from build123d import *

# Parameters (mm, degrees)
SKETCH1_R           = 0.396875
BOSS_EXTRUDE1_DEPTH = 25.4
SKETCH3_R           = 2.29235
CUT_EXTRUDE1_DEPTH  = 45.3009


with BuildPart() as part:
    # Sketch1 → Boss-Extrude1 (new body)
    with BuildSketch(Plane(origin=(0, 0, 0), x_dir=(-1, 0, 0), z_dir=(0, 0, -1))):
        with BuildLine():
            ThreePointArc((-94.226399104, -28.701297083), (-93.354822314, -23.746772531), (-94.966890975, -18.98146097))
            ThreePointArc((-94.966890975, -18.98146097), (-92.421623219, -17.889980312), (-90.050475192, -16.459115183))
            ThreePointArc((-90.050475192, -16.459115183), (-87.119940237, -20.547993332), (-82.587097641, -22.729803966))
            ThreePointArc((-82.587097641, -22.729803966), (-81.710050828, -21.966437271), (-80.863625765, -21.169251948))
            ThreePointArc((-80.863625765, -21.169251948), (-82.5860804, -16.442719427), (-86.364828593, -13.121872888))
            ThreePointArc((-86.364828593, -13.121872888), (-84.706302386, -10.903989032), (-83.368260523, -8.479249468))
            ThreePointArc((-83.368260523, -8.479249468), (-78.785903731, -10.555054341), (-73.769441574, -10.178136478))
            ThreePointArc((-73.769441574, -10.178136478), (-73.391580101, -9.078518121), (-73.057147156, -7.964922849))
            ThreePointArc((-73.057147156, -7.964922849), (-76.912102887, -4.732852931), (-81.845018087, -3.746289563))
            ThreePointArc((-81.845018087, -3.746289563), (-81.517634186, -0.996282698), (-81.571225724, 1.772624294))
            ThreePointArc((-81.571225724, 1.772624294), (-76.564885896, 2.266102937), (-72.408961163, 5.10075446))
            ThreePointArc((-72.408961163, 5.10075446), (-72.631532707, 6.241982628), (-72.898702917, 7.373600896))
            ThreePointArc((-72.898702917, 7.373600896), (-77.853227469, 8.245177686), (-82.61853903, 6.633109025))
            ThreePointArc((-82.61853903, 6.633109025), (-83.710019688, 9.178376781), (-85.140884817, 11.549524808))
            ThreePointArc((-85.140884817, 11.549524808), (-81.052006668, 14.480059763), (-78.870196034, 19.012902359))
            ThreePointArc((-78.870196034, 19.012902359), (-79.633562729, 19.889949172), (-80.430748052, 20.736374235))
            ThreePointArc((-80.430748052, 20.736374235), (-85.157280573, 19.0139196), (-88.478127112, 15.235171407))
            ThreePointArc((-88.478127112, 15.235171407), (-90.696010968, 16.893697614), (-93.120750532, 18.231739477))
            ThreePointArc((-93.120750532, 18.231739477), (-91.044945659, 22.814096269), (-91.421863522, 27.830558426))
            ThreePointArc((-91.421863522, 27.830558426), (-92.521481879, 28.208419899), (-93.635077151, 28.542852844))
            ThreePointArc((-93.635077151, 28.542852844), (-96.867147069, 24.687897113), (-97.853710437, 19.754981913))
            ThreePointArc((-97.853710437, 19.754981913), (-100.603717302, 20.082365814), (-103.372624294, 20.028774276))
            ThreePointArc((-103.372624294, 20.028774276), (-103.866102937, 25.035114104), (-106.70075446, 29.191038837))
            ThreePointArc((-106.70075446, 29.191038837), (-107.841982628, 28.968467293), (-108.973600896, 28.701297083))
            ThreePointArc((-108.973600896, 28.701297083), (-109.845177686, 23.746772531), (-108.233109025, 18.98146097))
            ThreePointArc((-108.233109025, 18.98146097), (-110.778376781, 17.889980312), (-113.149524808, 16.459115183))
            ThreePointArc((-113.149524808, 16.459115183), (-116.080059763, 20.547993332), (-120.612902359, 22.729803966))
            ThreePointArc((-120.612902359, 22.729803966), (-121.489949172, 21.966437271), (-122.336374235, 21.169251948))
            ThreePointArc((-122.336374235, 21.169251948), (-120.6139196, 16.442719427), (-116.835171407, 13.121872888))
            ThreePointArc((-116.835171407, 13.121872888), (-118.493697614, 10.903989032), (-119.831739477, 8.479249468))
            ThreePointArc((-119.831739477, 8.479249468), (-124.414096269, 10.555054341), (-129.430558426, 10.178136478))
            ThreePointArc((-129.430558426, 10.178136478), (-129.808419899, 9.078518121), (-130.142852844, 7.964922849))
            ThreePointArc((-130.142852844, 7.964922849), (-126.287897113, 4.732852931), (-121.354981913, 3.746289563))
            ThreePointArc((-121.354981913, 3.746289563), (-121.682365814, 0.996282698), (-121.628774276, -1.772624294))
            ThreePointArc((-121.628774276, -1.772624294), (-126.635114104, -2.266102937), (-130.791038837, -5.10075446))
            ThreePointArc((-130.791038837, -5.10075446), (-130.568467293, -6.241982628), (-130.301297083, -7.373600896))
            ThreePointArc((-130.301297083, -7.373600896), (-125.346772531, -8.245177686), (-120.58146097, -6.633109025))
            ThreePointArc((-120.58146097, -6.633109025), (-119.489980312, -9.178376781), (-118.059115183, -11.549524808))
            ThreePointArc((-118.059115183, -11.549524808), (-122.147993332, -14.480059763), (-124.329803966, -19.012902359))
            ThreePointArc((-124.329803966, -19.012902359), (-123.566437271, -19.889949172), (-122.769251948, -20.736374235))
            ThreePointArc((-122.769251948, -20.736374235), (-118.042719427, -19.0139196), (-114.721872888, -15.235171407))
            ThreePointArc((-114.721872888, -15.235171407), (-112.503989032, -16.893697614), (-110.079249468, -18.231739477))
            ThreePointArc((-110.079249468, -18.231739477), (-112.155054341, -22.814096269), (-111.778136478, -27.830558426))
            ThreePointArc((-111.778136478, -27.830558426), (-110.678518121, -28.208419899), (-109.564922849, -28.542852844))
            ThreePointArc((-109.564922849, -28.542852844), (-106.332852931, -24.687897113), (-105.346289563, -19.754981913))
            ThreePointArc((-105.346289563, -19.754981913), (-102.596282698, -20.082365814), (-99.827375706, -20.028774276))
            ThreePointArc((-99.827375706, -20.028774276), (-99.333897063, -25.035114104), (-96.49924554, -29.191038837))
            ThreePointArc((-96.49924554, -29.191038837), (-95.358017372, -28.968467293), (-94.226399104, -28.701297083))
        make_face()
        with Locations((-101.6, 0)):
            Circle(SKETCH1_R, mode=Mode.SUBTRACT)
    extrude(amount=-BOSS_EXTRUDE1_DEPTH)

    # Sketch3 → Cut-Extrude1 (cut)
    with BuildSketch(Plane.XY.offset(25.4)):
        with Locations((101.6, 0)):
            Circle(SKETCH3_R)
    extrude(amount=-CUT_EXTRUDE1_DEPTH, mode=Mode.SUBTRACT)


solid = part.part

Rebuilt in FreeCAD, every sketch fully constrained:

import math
import FreeCAD as App
import Part
import Sketcher
Q = App.Units.Quantity

doc = App.newDocument("Part")
body = doc.addObject("PartDesign::Body", "Body")

sketch1 = body.newObject("Sketcher::SketchObject", "Sketch")
sketch1.AttachmentSupport = (doc.getObject("XY_Plane"), [""])
sketch1.MapMode = "FlatFace"
sketch1.addGeometry(Part.ArcOfCircle(Part.Circle(App.Vector(103.485466, -24.518561, 0), App.Vector(0, 0, 1), 10.16), math.radians(146.976007), math.radians(204.310829)), False)
sketch1.addGeometry(Part.ArcOfCircle(Part.Circle(App.Vector(101.6, 0, 0), App.Vector(0, 0, 1), 20.107063), math.radians(-125.057721), math.radians(-109.262069)), False)
sketch1.addGeometry(Part.ArcOfCircle(Part.Circle(App.Vector(80.584222, -12.769177, 0), App.Vector(0, 0, 1), 10.16), math.radians(-78.630618), math.radians(-21.295797)), False)
sketch1.addGeometry(Part.ArcOfCircle(Part.Circle(App.Vector(101.6, 0, 0), App.Vector(0, 0, 1), 29.633333), math.radians(-134.408166), math.radians(-129.911624)), False)
sketch1.addGeometry(Part.ArcOfCircle(Part.Circle(App.Vector(90.973581, -22.17643, 0), App.Vector(0, 0, 1), 10.16), math.radians(116.976007), math.radians(174.310829)), False)
sketch1.addGeometry(Part.ArcOfCircle(Part.Circle(App.Vector(101.6, 0, 0), App.Vector(0, 0, 1), 20.107063), math.radians(-155.057721), math.radians(-139.262069)), False)
sketch1.addGeometry(Part.ArcOfCircle(Part.Circle(App.Vector(77.015213, -0.550543, 0), App.Vector(0, 0, 1), 10.16), math.radians(-108.630618), math.radians(-51.295797)), False)
sketch1.addGeometry(Part.ArcOfCircle(Part.Circle(App.Vector(101.6, 0, 0), App.Vector(0, 0, 1), 29.633333), math.radians(-164.408166), math.radians(-159.911624)), False)
sketch1.addGeometry(Part.ArcOfCircle(Part.Circle(App.Vector(81.309036, -13.892142, 0), App.Vector(0, 0, 1), 10.16), math.radians(86.976007), math.radians(144.310829)), False)
sketch1.addGeometry(Part.ArcOfCircle(Part.Circle(App.Vector(101.6, 0, 0), App.Vector(0, 0, 1), 20.107063), math.radians(174.942279), math.radians(190.737931)), False)
sketch1.addGeometry(Part.ArcOfCircle(Part.Circle(App.Vector(80.033679, 11.815609, 0), App.Vector(0, 0, 1), 10.16), math.radians(-138.630618), math.radians(-81.295797)), False)
sketch1.addGeometry(Part.ArcOfCircle(Part.Circle(App.Vector(101.6, 0, 0), App.Vector(0, 0, 1), 29.633333), math.radians(165.591834), math.radians(170.088376)), False)
sketch1.addGeometry(Part.ArcOfCircle(Part.Circle(App.Vector(77.081439, -1.885466, 0), App.Vector(0, 0, 1), 10.16), math.radians(56.976007), math.radians(114.310829)), False)
sketch1.addGeometry(Part.ArcOfCircle(Part.Circle(App.Vector(101.6, 0, 0), App.Vector(0, 0, 1), 20.107063), math.radians(144.942279), math.radians(160.737931)), False)
sketch1.addGeometry(Part.ArcOfCircle(Part.Circle(App.Vector(88.830823, 21.015778, 0), App.Vector(0, 0, 1), 10.16), math.radians(-168.630618), math.radians(-111.295797)), False)
sketch1.addGeometry(Part.ArcOfCircle(Part.Circle(App.Vector(101.6, 0, 0), App.Vector(0, 0, 1), 29.633333), math.radians(135.591834), math.radians(140.088376)), False)
sketch1.addGeometry(Part.ArcOfCircle(Part.Circle(App.Vector(79.42357, 10.626419, 0), App.Vector(0, 0, 1), 10.16), math.radians(26.976007), math.radians(84.310829)), False)
sketch1.addGeometry(Part.ArcOfCircle(Part.Circle(App.Vector(101.6, 0, 0), App.Vector(0, 0, 1), 20.107063), math.radians(114.942279), math.radians(130.737931)), False)
sketch1.addGeometry(Part.ArcOfCircle(Part.Circle(App.Vector(101.049457, 24.584787, 0), App.Vector(0, 0, 1), 10.16), math.radians(161.369382), math.radians(218.704203)), False)
sketch1.addGeometry(Part.ArcOfCircle(Part.Circle(App.Vector(101.6, 0, 0), App.Vector(0, 0, 1), 29.633333), math.radians(105.591834), math.radians(110.088376)), False)
sketch1.addGeometry(Part.ArcOfCircle(Part.Circle(App.Vector(87.707858, 20.290964, 0), App.Vector(0, 0, 1), 10.16), math.radians(-3.023993), math.radians(54.310829)), False)
sketch1.addGeometry(Part.ArcOfCircle(Part.Circle(App.Vector(101.6, 0, 0), App.Vector(0, 0, 1), 20.107063), math.radians(84.942279), math.radians(100.737931)), False)
sketch1.addGeometry(Part.ArcOfCircle(Part.Circle(App.Vector(113.415609, 21.566321, 0), App.Vector(0, 0, 1), 10.16), math.radians(131.369382), math.radians(188.704203)), False)
sketch1.addGeometry(Part.ArcOfCircle(Part.Circle(App.Vector(101.6, 0, 0), App.Vector(0, 0, 1), 29.633333), math.radians(75.591834), math.radians(80.088376)), False)
sketch1.addGeometry(Part.ArcOfCircle(Part.Circle(App.Vector(99.714534, 24.518561, 0), App.Vector(0, 0, 1), 10.16), math.radians(-33.023993), math.radians(24.310829)), False)
sketch1.addGeometry(Part.ArcOfCircle(Part.Circle(App.Vector(101.6, 0, 0), App.Vector(0, 0, 1), 20.107063), math.radians(54.942279), math.radians(70.737931)), False)
sketch1.addGeometry(Part.ArcOfCircle(Part.Circle(App.Vector(122.615778, 12.769177, 0), App.Vector(0, 0, 1), 10.16), math.radians(101.369382), math.radians(158.704203)), False)
sketch1.addGeometry(Part.ArcOfCircle(Part.Circle(App.Vector(101.6, 0, 0), App.Vector(0, 0, 1), 29.633333), math.radians(45.591834), math.radians(50.088376)), False)
sketch1.addGeometry(Part.ArcOfCircle(Part.Circle(App.Vector(112.226419, 22.17643, 0), App.Vector(0, 0, 1), 10.16), math.radians(-63.023993), math.radians(-5.689171)), False)
sketch1.addGeometry(Part.ArcOfCircle(Part.Circle(App.Vector(101.6, 0, 0), App.Vector(0, 0, 1), 20.107063), math.radians(24.942279), math.radians(40.737931)), False)
sketch1.addGeometry(Part.ArcOfCircle(Part.Circle(App.Vector(126.184787, 0.550543, 0), App.Vector(0, 0, 1), 10.16), math.radians(71.369382), math.radians(128.704203)), False)
sketch1.addGeometry(Part.ArcOfCircle(Part.Circle(App.Vector(101.6, 0, 0), App.Vector(0, 0, 1), 29.633333), math.radians(15.591834), math.radians(20.088376)), False)
sketch1.addGeometry(Part.ArcOfCircle(Part.Circle(App.Vector(121.890964, 13.892142, 0), App.Vector(0, 0, 1), 10.16), math.radians(-93.023993), math.radians(-35.689171)), False)
sketch1.addGeometry(Part.ArcOfCircle(Part.Circle(App.Vector(101.6, 0, 0), App.Vector(0, 0, 1), 20.107063), math.radians(-5.057721), math.radians(10.737931)), False)
sketch1.addGeometry(Part.ArcOfCircle(Part.Circle(App.Vector(123.166321, -11.815609, 0), App.Vector(0, 0, 1), 10.16), math.radians(41.369382), math.radians(98.704203)), False)
sketch1.addGeometry(Part.ArcOfCircle(Part.Circle(App.Vector(101.6, 0, 0), App.Vector(0, 0, 1), 29.633333), math.radians(-14.408166), math.radians(-9.911624)), False)
sketch1.addGeometry(Part.ArcOfCircle(Part.Circle(App.Vector(126.118561, 1.885466, 0), App.Vector(0, 0, 1), 10.16), math.radians(-123.023993), math.radians(-65.689171)), False)
sketch1.addGeometry(Part.ArcOfCircle(Part.Circle(App.Vector(101.6, 0, 0), App.Vector(0, 0, 1), 20.107063), math.radians(-35.057721), math.radians(-19.262069)), False)
sketch1.addGeometry(Part.ArcOfCircle(Part.Circle(App.Vector(114.369177, -21.015778, 0), App.Vector(0, 0, 1), 10.16), math.radians(11.369382), math.radians(68.704203)), False)
sketch1.addGeometry(Part.ArcOfCircle(Part.Circle(App.Vector(101.6, 0, 0), App.Vector(0, 0, 1), 29.633333), math.radians(-44.408166), math.radians(-39.911624)), False)
sketch1.addGeometry(Part.ArcOfCircle(Part.Circle(App.Vector(123.77643, -10.626419, 0), App.Vector(0, 0, 1), 10.16), math.radians(-153.023993), math.radians(-95.689171)), False)
sketch1.addGeometry(Part.ArcOfCircle(Part.Circle(App.Vector(101.6, 0, 0), App.Vector(0, 0, 1), 20.107063), math.radians(-65.057721), math.radians(-49.262069)), False)
sketch1.addGeometry(Part.ArcOfCircle(Part.Circle(App.Vector(102.150543, -24.584787, 0), App.Vector(0, 0, 1), 10.16), math.radians(-18.630618), math.radians(38.704203)), False)
sketch1.addGeometry(Part.ArcOfCircle(Part.Circle(App.Vector(101.6, 0, 0), App.Vector(0, 0, 1), 29.633333), math.radians(-74.408166), math.radians(-69.911624)), False)
sketch1.addGeometry(Part.ArcOfCircle(Part.Circle(App.Vector(115.492142, -20.290964, 0), App.Vector(0, 0, 1), 10.16), math.radians(176.976007), math.radians(234.310829)), False)
sketch1.addGeometry(Part.ArcOfCircle(Part.Circle(App.Vector(101.6, 0, 0), App.Vector(0, 0, 1), 20.107063), math.radians(-95.057721), math.radians(-79.262069)), False)
sketch1.addGeometry(Part.ArcOfCircle(Part.Circle(App.Vector(89.784391, -21.566321, 0), App.Vector(0, 0, 1), 10.16), math.radians(-48.630618), math.radians(8.704203)), False)
sketch1.addGeometry(Part.ArcOfCircle(Part.Circle(App.Vector(101.6, 0, 0), App.Vector(0, 0, 1), 29.633333), math.radians(-104.408166), math.radians(-99.911624)), False)
sketch1.addGeometry(Part.Circle(App.Vector(101.6, 0, 0), App.Vector(0, 0, 1), 0.396875), False)
sketch1.addConstraint(Sketcher.Constraint("Coincident", 0, 1, 1, 2))
sketch1.addConstraint(Sketcher.Constraint("Coincident", 1, 1, 2, 2))
sketch1.addConstraint(Sketcher.Constraint("Coincident", 2, 1, 3, 2))
sketch1.addConstraint(Sketcher.Constraint("Coincident", 3, 1, 4, 2))
sketch1.addConstraint(Sketcher.Constraint("Coincident", 4, 1, 5, 2))
sketch1.addConstraint(Sketcher.Constraint("Coincident", 5, 1, 6, 2))
sketch1.addConstraint(Sketcher.Constraint("Coincident", 6, 1, 7, 2))
sketch1.addConstraint(Sketcher.Constraint("Coincident", 7, 1, 8, 2))
sketch1.addConstraint(Sketcher.Constraint("Coincident", 8, 1, 9, 2))
sketch1.addConstraint(Sketcher.Constraint("Coincident", 9, 1, 10, 2))
sketch1.addConstraint(Sketcher.Constraint("Coincident", 10, 1, 11, 2))
sketch1.addConstraint(Sketcher.Constraint("Coincident", 11, 1, 12, 2))
sketch1.addConstraint(Sketcher.Constraint("Coincident", 12, 1, 13, 2))
sketch1.addConstraint(Sketcher.Constraint("Coincident", 13, 1, 14, 2))
sketch1.addConstraint(Sketcher.Constraint("Coincident", 14, 1, 15, 2))
sketch1.addConstraint(Sketcher.Constraint("Coincident", 15, 1, 16, 2))
sketch1.addConstraint(Sketcher.Constraint("Coincident", 16, 1, 17, 2))
sketch1.addConstraint(Sketcher.Constraint("Coincident", 17, 1, 18, 2))
sketch1.addConstraint(Sketcher.Constraint("Coincident", 18, 1, 19, 2))
sketch1.addConstraint(Sketcher.Constraint("Coincident", 19, 1, 20, 2))
sketch1.addConstraint(Sketcher.Constraint("Coincident", 20, 1, 21, 2))
sketch1.addConstraint(Sketcher.Constraint("Coincident", 21, 1, 22, 2))
sketch1.addConstraint(Sketcher.Constraint("Coincident", 22, 1, 23, 2))
sketch1.addConstraint(Sketcher.Constraint("Coincident", 23, 1, 24, 2))
sketch1.addConstraint(Sketcher.Constraint("Coincident", 24, 1, 25, 2))
sketch1.addConstraint(Sketcher.Constraint("Coincident", 25, 1, 26, 2))
sketch1.addConstraint(Sketcher.Constraint("Coincident", 26, 1, 27, 2))
sketch1.addConstraint(Sketcher.Constraint("Coincident", 27, 1, 28, 2))
sketch1.addConstraint(Sketcher.Constraint("Coincident", 28, 1, 29, 2))
sketch1.addConstraint(Sketcher.Constraint("Coincident", 29, 1, 30, 2))
sketch1.addConstraint(Sketcher.Constraint("Coincident", 30, 1, 31, 2))
sketch1.addConstraint(Sketcher.Constraint("Coincident", 31, 1, 32, 2))
sketch1.addConstraint(Sketcher.Constraint("Coincident", 32, 1, 33, 2))
sketch1.addConstraint(Sketcher.Constraint("Coincident", 33, 1, 34, 2))
sketch1.addConstraint(Sketcher.Constraint("Coincident", 34, 1, 35, 2))
sketch1.addConstraint(Sketcher.Constraint("Coincident", 35, 1, 36, 2))
sketch1.addConstraint(Sketcher.Constraint("Coincident", 36, 1, 37, 2))
sketch1.addConstraint(Sketcher.Constraint("Coincident", 37, 1, 38, 2))
sketch1.addConstraint(Sketcher.Constraint("Coincident", 38, 1, 39, 2))
sketch1.addConstraint(Sketcher.Constraint("Coincident", 39, 1, 40, 2))
sketch1.addConstraint(Sketcher.Constraint("Coincident", 40, 1, 41, 2))
sketch1.addConstraint(Sketcher.Constraint("Coincident", 41, 1, 42, 2))
sketch1.addConstraint(Sketcher.Constraint("Coincident", 42, 1, 43, 2))
sketch1.addConstraint(Sketcher.Constraint("Coincident", 43, 1, 44, 2))
sketch1.addConstraint(Sketcher.Constraint("Coincident", 44, 1, 45, 2))
sketch1.addConstraint(Sketcher.Constraint("Coincident", 45, 1, 46, 2))
sketch1.addConstraint(Sketcher.Constraint("Coincident", 46, 1, 47, 2))
sketch1.addConstraint(Sketcher.Constraint("Coincident", 47, 1, 0, 2))
sketch1.addConstraint(Sketcher.Constraint("Coincident", 3, 3, 1, 3))
sketch1.addConstraint(Sketcher.Constraint("Coincident", 5, 3, 1, 3))
sketch1.addConstraint(Sketcher.Constraint("Coincident", 7, 3, 1, 3))
sketch1.addConstraint(Sketcher.Constraint("Coincident", 9, 3, 1, 3))
sketch1.addConstraint(Sketcher.Constraint("Coincident", 11, 3, 1, 3))
sketch1.addConstraint(Sketcher.Constraint("Coincident", 13, 3, 1, 3))
sketch1.addConstraint(Sketcher.Constraint("Coincident", 15, 3, 1, 3))
sketch1.addConstraint(Sketcher.Constraint("Coincident", 17, 3, 1, 3))
sketch1.addConstraint(Sketcher.Constraint("Coincident", 19, 3, 1, 3))
sketch1.addConstraint(Sketcher.Constraint("Coincident", 21, 3, 1, 3))
sketch1.addConstraint(Sketcher.Constraint("Coincident", 23, 3, 1, 3))
sketch1.addConstraint(Sketcher.Constraint("Coincident", 25, 3, 1, 3))
sketch1.addConstraint(Sketcher.Constraint("Coincident", 27, 3, 1, 3))
sketch1.addConstraint(Sketcher.Constraint("Coincident", 29, 3, 1, 3))
sketch1.addConstraint(Sketcher.Constraint("Coincident", 31, 3, 1, 3))
sketch1.addConstraint(Sketcher.Constraint("Coincident", 33, 3, 1, 3))
sketch1.addConstraint(Sketcher.Constraint("Coincident", 35, 3, 1, 3))
sketch1.addConstraint(Sketcher.Constraint("Coincident", 37, 3, 1, 3))
sketch1.addConstraint(Sketcher.Constraint("Coincident", 39, 3, 1, 3))
sketch1.addConstraint(Sketcher.Constraint("Coincident", 41, 3, 1, 3))
sketch1.addConstraint(Sketcher.Constraint("Coincident", 43, 3, 1, 3))
sketch1.addConstraint(Sketcher.Constraint("Coincident", 45, 3, 1, 3))
sketch1.addConstraint(Sketcher.Constraint("Coincident", 47, 3, 1, 3))
sketch1.addConstraint(Sketcher.Constraint("Coincident", 48, 3, 1, 3))
sketch1.addConstraint(Sketcher.Constraint("Equal", 0, 2))
sketch1.addConstraint(Sketcher.Constraint("Equal", 2, 4))
sketch1.addConstraint(Sketcher.Constraint("Equal", 1, 5))
sketch1.addConstraint(Sketcher.Constraint("Equal", 4, 6))
sketch1.addConstraint(Sketcher.Constraint("Equal", 3, 7))
sketch1.addConstraint(Sketcher.Constraint("Equal", 6, 8))
sketch1.addConstraint(Sketcher.Constraint("Equal", 5, 9))
sketch1.addConstraint(Sketcher.Constraint("Equal", 8, 10))
sketch1.addConstraint(Sketcher.Constraint("Equal", 7, 11))
sketch1.addConstraint(Sketcher.Constraint("Equal", 10, 12))
sketch1.addConstraint(Sketcher.Constraint("Equal", 9, 13))
sketch1.addConstraint(Sketcher.Constraint("Equal", 12, 14))
sketch1.addConstraint(Sketcher.Constraint("Equal", 11, 15))
sketch1.addConstraint(Sketcher.Constraint("Equal", 14, 16))
sketch1.addConstraint(Sketcher.Constraint("Equal", 13, 17))
sketch1.addConstraint(Sketcher.Constraint("Equal", 16, 18))
sketch1.addConstraint(Sketcher.Constraint("Equal", 15, 19))
sketch1.addConstraint(Sketcher.Constraint("Equal", 18, 20))
sketch1.addConstraint(Sketcher.Constraint("Equal", 17, 21))
sketch1.addConstraint(Sketcher.Constraint("Equal", 20, 22))
sketch1.addConstraint(Sketcher.Constraint("Equal", 19, 23))
sketch1.addConstraint(Sketcher.Constraint("Equal", 22, 24))
sketch1.addConstraint(Sketcher.Constraint("Equal", 21, 25))
sketch1.addConstraint(Sketcher.Constraint("Equal", 24, 26))
sketch1.addConstraint(Sketcher.Constraint("Equal", 23, 27))
sketch1.addConstraint(Sketcher.Constraint("Equal", 26, 28))
sketch1.addConstraint(Sketcher.Constraint("Equal", 25, 29))
sketch1.addConstraint(Sketcher.Constraint("Equal", 28, 30))
sketch1.addConstraint(Sketcher.Constraint("Equal", 27, 31))
sketch1.addConstraint(Sketcher.Constraint("Equal", 30, 32))
sketch1.addConstraint(Sketcher.Constraint("Equal", 29, 33))
sketch1.addConstraint(Sketcher.Constraint("Equal", 32, 34))
sketch1.addConstraint(Sketcher.Constraint("Equal", 31, 35))
sketch1.addConstraint(Sketcher.Constraint("Equal", 34, 36))
sketch1.addConstraint(Sketcher.Constraint("Equal", 33, 37))
sketch1.addConstraint(Sketcher.Constraint("Equal", 36, 38))
sketch1.addConstraint(Sketcher.Constraint("Equal", 35, 39))
sketch1.addConstraint(Sketcher.Constraint("Equal", 38, 40))
sketch1.addConstraint(Sketcher.Constraint("Equal", 37, 41))
sketch1.addConstraint(Sketcher.Constraint("Equal", 40, 42))
sketch1.addConstraint(Sketcher.Constraint("Equal", 39, 43))
sketch1.addConstraint(Sketcher.Constraint("Equal", 42, 44))
sketch1.addConstraint(Sketcher.Constraint("Equal", 41, 45))
sketch1.addConstraint(Sketcher.Constraint("Equal", 44, 46))
sketch1.addConstraint(Sketcher.Constraint("Equal", 43, 47))
sketch1.addConstraint(Sketcher.Constraint("PointOnObject", 1, 3, -1))
sketch1.addConstraint(Sketcher.Constraint("Radius", 0, Q("0.4 in")))
sketch1.addConstraint(Sketcher.Constraint("Diameter", 48, Q("0.03125 in")))
sketch1.addConstraint(Sketcher.Constraint("DistanceX", -1, 1, 1, 3, Q("4 in")))
sketch1.addConstraint(Sketcher.Constraint("Radius", 1, 20.107063))
sketch1.addConstraint(Sketcher.Constraint("Radius", 3, 29.633333))
sketch1.addConstraint(Sketcher.Constraint("DistanceY", -1, 1, 11, 1, 7.373601))
sketch1.addConstraint(Sketcher.Constraint("DistanceX", -1, 1, 23, 1, 108.973601))
sketch1.addConstraint(Sketcher.Constraint("DistanceY", 35, 1, -1, 1, 7.373601))
sketch1.addConstraint(Sketcher.Constraint("DistanceX", -1, 1, 47, 1, 94.226399))
sketch1.addConstraint(Sketcher.Constraint("DistanceY", 0, 3, -1, 1, 24.518561))
sketch1.addConstraint(Sketcher.Constraint("DistanceX", -1, 1, 2, 3, 80.584222))
sketch1.addConstraint(Sketcher.Constraint("DistanceX", -1, 1, 4, 3, 90.973581))
sketch1.addConstraint(Sketcher.Constraint("DistanceY", 4, 3, -1, 1, 22.17643))
sketch1.addConstraint(Sketcher.Constraint("DistanceX", -1, 1, 10, 3, 80.033679))
sketch1.addConstraint(Sketcher.Constraint("DistanceY", -1, 1, 10, 3, 11.815609))
sketch1.addConstraint(Sketcher.Constraint("DistanceX", -1, 1, 12, 3, 77.081439))
sketch1.addConstraint(Sketcher.Constraint("DistanceY", -1, 1, 14, 3, 21.015778))
sketch1.addConstraint(Sketcher.Constraint("DistanceX", -1, 1, 16, 3, 79.42357))
sketch1.addConstraint(Sketcher.Constraint("DistanceY", -1, 1, 16, 3, 10.626419))
sketch1.addConstraint(Sketcher.Constraint("DistanceX", -1, 1, 22, 3, 113.415609))
sketch1.addConstraint(Sketcher.Constraint("DistanceY", -1, 1, 22, 3, 21.566321))
sketch1.addConstraint(Sketcher.Constraint("DistanceY", -1, 1, 24, 3, 24.518561))
sketch1.addConstraint(Sketcher.Constraint("DistanceX", -1, 1, 26, 3, 122.615778))
sketch1.addConstraint(Sketcher.Constraint("DistanceX", -1, 1, 28, 3, 112.226419))
sketch1.addConstraint(Sketcher.Constraint("DistanceY", -1, 1, 28, 3, 22.17643))
sketch1.addConstraint(Sketcher.Constraint("DistanceX", -1, 1, 34, 3, 123.166321))
sketch1.addConstraint(Sketcher.Constraint("DistanceY", 34, 3, -1, 1, 11.815609))
sketch1.addConstraint(Sketcher.Constraint("DistanceX", -1, 1, 36, 3, 126.118561))
sketch1.addConstraint(Sketcher.Constraint("DistanceY", 38, 3, -1, 1, 21.015778))
sketch1.addConstraint(Sketcher.Constraint("DistanceX", -1, 1, 40, 3, 123.77643))
sketch1.addConstraint(Sketcher.Constraint("DistanceY", 40, 3, -1, 1, 10.626419))
sketch1.addConstraint(Sketcher.Constraint("DistanceX", -1, 1, 46, 3, 89.784391))
sketch1.addConstraint(Sketcher.Constraint("DistanceY", 46, 3, -1, 1, 21.566321))
sketch1.addConstraint(Sketcher.Constraint("DistanceX", -1, 1, 5, 1, 83.368261))
sketch1.addConstraint(Sketcher.Constraint("DistanceX", -1, 1, 6, 1, 73.769442))
sketch1.addConstraint(Sketcher.Constraint("DistanceX", -1, 1, 8, 1, 81.845018))
sketch1.addConstraint(Sketcher.Constraint("DistanceX", -1, 1, 17, 1, 93.120751))
sketch1.addConstraint(Sketcher.Constraint("DistanceY", -1, 1, 18, 1, 27.830558))
sketch1.addConstraint(Sketcher.Constraint("DistanceX", -1, 1, 20, 1, 97.85371))
sketch1.addConstraint(Sketcher.Constraint("DistanceX", -1, 1, 29, 1, 119.831739))
sketch1.addConstraint(Sketcher.Constraint("DistanceX", -1, 1, 30, 1, 129.430558))
sketch1.addConstraint(Sketcher.Constraint("DistanceX", -1, 1, 32, 1, 121.354982))
sketch1.addConstraint(Sketcher.Constraint("DistanceX", -1, 1, 41, 1, 110.079249))
sketch1.addConstraint(Sketcher.Constraint("DistanceY", 42, 1, -1, 1, 27.830558))
sketch1.addConstraint(Sketcher.Constraint("DistanceX", -1, 1, 44, 1, 105.34629))
sketch1.addConstraint(Sketcher.Constraint("DistanceY", 2, 3, -1, 1, 12.769177))
sketch1.addConstraint(Sketcher.Constraint("DistanceX", -1, 1, 8, 3, 81.309036))
sketch1.addConstraint(Sketcher.Constraint("DistanceX", -1, 1, 14, 3, 88.830823))
sketch1.addConstraint(Sketcher.Constraint("DistanceX", -1, 1, 20, 3, 87.707858))
sketch1.addConstraint(Sketcher.Constraint("DistanceY", -1, 1, 26, 3, 12.769177))
sketch1.addConstraint(Sketcher.Constraint("DistanceX", -1, 1, 32, 3, 121.890964))
sketch1.addConstraint(Sketcher.Constraint("DistanceX", -1, 1, 38, 3, 114.369177))
sketch1.addConstraint(Sketcher.Constraint("DistanceX", -1, 1, 44, 3, 115.492142))
pad1 = body.newObject("PartDesign::Pad", "Pad")
pad1.Profile = sketch1
pad1.Length = Q("1 in")

sketch2 = body.newObject("Sketcher::SketchObject", "Sketch001")
sketch2.AttachmentSupport = (doc.getObject("XY_Plane"), [""])
sketch2.MapMode = "FlatFace"
sketch2.AttachmentOffset = App.Placement(App.Vector(0, 0, 1 * 25.4), App.Rotation())
sketch2.addGeometry(Part.Circle(App.Vector(101.6, 0, 0), App.Vector(0, 0, 1), 2.29235), False)
sketch2.addConstraint(Sketcher.Constraint("PointOnObject", 0, 3, -1))
sketch2.addConstraint(Sketcher.Constraint("DistanceX", -1, 1, 0, 3, Q("4 in")))
sketch2.addConstraint(Sketcher.Constraint("Diameter", 0, Q("0.1805 in")))
pocket1 = body.newObject("PartDesign::Pocket", "Pocket")
pocket1.Profile = sketch2
pocket1.Length = Q("1.7835 in")

doc.recompute()
